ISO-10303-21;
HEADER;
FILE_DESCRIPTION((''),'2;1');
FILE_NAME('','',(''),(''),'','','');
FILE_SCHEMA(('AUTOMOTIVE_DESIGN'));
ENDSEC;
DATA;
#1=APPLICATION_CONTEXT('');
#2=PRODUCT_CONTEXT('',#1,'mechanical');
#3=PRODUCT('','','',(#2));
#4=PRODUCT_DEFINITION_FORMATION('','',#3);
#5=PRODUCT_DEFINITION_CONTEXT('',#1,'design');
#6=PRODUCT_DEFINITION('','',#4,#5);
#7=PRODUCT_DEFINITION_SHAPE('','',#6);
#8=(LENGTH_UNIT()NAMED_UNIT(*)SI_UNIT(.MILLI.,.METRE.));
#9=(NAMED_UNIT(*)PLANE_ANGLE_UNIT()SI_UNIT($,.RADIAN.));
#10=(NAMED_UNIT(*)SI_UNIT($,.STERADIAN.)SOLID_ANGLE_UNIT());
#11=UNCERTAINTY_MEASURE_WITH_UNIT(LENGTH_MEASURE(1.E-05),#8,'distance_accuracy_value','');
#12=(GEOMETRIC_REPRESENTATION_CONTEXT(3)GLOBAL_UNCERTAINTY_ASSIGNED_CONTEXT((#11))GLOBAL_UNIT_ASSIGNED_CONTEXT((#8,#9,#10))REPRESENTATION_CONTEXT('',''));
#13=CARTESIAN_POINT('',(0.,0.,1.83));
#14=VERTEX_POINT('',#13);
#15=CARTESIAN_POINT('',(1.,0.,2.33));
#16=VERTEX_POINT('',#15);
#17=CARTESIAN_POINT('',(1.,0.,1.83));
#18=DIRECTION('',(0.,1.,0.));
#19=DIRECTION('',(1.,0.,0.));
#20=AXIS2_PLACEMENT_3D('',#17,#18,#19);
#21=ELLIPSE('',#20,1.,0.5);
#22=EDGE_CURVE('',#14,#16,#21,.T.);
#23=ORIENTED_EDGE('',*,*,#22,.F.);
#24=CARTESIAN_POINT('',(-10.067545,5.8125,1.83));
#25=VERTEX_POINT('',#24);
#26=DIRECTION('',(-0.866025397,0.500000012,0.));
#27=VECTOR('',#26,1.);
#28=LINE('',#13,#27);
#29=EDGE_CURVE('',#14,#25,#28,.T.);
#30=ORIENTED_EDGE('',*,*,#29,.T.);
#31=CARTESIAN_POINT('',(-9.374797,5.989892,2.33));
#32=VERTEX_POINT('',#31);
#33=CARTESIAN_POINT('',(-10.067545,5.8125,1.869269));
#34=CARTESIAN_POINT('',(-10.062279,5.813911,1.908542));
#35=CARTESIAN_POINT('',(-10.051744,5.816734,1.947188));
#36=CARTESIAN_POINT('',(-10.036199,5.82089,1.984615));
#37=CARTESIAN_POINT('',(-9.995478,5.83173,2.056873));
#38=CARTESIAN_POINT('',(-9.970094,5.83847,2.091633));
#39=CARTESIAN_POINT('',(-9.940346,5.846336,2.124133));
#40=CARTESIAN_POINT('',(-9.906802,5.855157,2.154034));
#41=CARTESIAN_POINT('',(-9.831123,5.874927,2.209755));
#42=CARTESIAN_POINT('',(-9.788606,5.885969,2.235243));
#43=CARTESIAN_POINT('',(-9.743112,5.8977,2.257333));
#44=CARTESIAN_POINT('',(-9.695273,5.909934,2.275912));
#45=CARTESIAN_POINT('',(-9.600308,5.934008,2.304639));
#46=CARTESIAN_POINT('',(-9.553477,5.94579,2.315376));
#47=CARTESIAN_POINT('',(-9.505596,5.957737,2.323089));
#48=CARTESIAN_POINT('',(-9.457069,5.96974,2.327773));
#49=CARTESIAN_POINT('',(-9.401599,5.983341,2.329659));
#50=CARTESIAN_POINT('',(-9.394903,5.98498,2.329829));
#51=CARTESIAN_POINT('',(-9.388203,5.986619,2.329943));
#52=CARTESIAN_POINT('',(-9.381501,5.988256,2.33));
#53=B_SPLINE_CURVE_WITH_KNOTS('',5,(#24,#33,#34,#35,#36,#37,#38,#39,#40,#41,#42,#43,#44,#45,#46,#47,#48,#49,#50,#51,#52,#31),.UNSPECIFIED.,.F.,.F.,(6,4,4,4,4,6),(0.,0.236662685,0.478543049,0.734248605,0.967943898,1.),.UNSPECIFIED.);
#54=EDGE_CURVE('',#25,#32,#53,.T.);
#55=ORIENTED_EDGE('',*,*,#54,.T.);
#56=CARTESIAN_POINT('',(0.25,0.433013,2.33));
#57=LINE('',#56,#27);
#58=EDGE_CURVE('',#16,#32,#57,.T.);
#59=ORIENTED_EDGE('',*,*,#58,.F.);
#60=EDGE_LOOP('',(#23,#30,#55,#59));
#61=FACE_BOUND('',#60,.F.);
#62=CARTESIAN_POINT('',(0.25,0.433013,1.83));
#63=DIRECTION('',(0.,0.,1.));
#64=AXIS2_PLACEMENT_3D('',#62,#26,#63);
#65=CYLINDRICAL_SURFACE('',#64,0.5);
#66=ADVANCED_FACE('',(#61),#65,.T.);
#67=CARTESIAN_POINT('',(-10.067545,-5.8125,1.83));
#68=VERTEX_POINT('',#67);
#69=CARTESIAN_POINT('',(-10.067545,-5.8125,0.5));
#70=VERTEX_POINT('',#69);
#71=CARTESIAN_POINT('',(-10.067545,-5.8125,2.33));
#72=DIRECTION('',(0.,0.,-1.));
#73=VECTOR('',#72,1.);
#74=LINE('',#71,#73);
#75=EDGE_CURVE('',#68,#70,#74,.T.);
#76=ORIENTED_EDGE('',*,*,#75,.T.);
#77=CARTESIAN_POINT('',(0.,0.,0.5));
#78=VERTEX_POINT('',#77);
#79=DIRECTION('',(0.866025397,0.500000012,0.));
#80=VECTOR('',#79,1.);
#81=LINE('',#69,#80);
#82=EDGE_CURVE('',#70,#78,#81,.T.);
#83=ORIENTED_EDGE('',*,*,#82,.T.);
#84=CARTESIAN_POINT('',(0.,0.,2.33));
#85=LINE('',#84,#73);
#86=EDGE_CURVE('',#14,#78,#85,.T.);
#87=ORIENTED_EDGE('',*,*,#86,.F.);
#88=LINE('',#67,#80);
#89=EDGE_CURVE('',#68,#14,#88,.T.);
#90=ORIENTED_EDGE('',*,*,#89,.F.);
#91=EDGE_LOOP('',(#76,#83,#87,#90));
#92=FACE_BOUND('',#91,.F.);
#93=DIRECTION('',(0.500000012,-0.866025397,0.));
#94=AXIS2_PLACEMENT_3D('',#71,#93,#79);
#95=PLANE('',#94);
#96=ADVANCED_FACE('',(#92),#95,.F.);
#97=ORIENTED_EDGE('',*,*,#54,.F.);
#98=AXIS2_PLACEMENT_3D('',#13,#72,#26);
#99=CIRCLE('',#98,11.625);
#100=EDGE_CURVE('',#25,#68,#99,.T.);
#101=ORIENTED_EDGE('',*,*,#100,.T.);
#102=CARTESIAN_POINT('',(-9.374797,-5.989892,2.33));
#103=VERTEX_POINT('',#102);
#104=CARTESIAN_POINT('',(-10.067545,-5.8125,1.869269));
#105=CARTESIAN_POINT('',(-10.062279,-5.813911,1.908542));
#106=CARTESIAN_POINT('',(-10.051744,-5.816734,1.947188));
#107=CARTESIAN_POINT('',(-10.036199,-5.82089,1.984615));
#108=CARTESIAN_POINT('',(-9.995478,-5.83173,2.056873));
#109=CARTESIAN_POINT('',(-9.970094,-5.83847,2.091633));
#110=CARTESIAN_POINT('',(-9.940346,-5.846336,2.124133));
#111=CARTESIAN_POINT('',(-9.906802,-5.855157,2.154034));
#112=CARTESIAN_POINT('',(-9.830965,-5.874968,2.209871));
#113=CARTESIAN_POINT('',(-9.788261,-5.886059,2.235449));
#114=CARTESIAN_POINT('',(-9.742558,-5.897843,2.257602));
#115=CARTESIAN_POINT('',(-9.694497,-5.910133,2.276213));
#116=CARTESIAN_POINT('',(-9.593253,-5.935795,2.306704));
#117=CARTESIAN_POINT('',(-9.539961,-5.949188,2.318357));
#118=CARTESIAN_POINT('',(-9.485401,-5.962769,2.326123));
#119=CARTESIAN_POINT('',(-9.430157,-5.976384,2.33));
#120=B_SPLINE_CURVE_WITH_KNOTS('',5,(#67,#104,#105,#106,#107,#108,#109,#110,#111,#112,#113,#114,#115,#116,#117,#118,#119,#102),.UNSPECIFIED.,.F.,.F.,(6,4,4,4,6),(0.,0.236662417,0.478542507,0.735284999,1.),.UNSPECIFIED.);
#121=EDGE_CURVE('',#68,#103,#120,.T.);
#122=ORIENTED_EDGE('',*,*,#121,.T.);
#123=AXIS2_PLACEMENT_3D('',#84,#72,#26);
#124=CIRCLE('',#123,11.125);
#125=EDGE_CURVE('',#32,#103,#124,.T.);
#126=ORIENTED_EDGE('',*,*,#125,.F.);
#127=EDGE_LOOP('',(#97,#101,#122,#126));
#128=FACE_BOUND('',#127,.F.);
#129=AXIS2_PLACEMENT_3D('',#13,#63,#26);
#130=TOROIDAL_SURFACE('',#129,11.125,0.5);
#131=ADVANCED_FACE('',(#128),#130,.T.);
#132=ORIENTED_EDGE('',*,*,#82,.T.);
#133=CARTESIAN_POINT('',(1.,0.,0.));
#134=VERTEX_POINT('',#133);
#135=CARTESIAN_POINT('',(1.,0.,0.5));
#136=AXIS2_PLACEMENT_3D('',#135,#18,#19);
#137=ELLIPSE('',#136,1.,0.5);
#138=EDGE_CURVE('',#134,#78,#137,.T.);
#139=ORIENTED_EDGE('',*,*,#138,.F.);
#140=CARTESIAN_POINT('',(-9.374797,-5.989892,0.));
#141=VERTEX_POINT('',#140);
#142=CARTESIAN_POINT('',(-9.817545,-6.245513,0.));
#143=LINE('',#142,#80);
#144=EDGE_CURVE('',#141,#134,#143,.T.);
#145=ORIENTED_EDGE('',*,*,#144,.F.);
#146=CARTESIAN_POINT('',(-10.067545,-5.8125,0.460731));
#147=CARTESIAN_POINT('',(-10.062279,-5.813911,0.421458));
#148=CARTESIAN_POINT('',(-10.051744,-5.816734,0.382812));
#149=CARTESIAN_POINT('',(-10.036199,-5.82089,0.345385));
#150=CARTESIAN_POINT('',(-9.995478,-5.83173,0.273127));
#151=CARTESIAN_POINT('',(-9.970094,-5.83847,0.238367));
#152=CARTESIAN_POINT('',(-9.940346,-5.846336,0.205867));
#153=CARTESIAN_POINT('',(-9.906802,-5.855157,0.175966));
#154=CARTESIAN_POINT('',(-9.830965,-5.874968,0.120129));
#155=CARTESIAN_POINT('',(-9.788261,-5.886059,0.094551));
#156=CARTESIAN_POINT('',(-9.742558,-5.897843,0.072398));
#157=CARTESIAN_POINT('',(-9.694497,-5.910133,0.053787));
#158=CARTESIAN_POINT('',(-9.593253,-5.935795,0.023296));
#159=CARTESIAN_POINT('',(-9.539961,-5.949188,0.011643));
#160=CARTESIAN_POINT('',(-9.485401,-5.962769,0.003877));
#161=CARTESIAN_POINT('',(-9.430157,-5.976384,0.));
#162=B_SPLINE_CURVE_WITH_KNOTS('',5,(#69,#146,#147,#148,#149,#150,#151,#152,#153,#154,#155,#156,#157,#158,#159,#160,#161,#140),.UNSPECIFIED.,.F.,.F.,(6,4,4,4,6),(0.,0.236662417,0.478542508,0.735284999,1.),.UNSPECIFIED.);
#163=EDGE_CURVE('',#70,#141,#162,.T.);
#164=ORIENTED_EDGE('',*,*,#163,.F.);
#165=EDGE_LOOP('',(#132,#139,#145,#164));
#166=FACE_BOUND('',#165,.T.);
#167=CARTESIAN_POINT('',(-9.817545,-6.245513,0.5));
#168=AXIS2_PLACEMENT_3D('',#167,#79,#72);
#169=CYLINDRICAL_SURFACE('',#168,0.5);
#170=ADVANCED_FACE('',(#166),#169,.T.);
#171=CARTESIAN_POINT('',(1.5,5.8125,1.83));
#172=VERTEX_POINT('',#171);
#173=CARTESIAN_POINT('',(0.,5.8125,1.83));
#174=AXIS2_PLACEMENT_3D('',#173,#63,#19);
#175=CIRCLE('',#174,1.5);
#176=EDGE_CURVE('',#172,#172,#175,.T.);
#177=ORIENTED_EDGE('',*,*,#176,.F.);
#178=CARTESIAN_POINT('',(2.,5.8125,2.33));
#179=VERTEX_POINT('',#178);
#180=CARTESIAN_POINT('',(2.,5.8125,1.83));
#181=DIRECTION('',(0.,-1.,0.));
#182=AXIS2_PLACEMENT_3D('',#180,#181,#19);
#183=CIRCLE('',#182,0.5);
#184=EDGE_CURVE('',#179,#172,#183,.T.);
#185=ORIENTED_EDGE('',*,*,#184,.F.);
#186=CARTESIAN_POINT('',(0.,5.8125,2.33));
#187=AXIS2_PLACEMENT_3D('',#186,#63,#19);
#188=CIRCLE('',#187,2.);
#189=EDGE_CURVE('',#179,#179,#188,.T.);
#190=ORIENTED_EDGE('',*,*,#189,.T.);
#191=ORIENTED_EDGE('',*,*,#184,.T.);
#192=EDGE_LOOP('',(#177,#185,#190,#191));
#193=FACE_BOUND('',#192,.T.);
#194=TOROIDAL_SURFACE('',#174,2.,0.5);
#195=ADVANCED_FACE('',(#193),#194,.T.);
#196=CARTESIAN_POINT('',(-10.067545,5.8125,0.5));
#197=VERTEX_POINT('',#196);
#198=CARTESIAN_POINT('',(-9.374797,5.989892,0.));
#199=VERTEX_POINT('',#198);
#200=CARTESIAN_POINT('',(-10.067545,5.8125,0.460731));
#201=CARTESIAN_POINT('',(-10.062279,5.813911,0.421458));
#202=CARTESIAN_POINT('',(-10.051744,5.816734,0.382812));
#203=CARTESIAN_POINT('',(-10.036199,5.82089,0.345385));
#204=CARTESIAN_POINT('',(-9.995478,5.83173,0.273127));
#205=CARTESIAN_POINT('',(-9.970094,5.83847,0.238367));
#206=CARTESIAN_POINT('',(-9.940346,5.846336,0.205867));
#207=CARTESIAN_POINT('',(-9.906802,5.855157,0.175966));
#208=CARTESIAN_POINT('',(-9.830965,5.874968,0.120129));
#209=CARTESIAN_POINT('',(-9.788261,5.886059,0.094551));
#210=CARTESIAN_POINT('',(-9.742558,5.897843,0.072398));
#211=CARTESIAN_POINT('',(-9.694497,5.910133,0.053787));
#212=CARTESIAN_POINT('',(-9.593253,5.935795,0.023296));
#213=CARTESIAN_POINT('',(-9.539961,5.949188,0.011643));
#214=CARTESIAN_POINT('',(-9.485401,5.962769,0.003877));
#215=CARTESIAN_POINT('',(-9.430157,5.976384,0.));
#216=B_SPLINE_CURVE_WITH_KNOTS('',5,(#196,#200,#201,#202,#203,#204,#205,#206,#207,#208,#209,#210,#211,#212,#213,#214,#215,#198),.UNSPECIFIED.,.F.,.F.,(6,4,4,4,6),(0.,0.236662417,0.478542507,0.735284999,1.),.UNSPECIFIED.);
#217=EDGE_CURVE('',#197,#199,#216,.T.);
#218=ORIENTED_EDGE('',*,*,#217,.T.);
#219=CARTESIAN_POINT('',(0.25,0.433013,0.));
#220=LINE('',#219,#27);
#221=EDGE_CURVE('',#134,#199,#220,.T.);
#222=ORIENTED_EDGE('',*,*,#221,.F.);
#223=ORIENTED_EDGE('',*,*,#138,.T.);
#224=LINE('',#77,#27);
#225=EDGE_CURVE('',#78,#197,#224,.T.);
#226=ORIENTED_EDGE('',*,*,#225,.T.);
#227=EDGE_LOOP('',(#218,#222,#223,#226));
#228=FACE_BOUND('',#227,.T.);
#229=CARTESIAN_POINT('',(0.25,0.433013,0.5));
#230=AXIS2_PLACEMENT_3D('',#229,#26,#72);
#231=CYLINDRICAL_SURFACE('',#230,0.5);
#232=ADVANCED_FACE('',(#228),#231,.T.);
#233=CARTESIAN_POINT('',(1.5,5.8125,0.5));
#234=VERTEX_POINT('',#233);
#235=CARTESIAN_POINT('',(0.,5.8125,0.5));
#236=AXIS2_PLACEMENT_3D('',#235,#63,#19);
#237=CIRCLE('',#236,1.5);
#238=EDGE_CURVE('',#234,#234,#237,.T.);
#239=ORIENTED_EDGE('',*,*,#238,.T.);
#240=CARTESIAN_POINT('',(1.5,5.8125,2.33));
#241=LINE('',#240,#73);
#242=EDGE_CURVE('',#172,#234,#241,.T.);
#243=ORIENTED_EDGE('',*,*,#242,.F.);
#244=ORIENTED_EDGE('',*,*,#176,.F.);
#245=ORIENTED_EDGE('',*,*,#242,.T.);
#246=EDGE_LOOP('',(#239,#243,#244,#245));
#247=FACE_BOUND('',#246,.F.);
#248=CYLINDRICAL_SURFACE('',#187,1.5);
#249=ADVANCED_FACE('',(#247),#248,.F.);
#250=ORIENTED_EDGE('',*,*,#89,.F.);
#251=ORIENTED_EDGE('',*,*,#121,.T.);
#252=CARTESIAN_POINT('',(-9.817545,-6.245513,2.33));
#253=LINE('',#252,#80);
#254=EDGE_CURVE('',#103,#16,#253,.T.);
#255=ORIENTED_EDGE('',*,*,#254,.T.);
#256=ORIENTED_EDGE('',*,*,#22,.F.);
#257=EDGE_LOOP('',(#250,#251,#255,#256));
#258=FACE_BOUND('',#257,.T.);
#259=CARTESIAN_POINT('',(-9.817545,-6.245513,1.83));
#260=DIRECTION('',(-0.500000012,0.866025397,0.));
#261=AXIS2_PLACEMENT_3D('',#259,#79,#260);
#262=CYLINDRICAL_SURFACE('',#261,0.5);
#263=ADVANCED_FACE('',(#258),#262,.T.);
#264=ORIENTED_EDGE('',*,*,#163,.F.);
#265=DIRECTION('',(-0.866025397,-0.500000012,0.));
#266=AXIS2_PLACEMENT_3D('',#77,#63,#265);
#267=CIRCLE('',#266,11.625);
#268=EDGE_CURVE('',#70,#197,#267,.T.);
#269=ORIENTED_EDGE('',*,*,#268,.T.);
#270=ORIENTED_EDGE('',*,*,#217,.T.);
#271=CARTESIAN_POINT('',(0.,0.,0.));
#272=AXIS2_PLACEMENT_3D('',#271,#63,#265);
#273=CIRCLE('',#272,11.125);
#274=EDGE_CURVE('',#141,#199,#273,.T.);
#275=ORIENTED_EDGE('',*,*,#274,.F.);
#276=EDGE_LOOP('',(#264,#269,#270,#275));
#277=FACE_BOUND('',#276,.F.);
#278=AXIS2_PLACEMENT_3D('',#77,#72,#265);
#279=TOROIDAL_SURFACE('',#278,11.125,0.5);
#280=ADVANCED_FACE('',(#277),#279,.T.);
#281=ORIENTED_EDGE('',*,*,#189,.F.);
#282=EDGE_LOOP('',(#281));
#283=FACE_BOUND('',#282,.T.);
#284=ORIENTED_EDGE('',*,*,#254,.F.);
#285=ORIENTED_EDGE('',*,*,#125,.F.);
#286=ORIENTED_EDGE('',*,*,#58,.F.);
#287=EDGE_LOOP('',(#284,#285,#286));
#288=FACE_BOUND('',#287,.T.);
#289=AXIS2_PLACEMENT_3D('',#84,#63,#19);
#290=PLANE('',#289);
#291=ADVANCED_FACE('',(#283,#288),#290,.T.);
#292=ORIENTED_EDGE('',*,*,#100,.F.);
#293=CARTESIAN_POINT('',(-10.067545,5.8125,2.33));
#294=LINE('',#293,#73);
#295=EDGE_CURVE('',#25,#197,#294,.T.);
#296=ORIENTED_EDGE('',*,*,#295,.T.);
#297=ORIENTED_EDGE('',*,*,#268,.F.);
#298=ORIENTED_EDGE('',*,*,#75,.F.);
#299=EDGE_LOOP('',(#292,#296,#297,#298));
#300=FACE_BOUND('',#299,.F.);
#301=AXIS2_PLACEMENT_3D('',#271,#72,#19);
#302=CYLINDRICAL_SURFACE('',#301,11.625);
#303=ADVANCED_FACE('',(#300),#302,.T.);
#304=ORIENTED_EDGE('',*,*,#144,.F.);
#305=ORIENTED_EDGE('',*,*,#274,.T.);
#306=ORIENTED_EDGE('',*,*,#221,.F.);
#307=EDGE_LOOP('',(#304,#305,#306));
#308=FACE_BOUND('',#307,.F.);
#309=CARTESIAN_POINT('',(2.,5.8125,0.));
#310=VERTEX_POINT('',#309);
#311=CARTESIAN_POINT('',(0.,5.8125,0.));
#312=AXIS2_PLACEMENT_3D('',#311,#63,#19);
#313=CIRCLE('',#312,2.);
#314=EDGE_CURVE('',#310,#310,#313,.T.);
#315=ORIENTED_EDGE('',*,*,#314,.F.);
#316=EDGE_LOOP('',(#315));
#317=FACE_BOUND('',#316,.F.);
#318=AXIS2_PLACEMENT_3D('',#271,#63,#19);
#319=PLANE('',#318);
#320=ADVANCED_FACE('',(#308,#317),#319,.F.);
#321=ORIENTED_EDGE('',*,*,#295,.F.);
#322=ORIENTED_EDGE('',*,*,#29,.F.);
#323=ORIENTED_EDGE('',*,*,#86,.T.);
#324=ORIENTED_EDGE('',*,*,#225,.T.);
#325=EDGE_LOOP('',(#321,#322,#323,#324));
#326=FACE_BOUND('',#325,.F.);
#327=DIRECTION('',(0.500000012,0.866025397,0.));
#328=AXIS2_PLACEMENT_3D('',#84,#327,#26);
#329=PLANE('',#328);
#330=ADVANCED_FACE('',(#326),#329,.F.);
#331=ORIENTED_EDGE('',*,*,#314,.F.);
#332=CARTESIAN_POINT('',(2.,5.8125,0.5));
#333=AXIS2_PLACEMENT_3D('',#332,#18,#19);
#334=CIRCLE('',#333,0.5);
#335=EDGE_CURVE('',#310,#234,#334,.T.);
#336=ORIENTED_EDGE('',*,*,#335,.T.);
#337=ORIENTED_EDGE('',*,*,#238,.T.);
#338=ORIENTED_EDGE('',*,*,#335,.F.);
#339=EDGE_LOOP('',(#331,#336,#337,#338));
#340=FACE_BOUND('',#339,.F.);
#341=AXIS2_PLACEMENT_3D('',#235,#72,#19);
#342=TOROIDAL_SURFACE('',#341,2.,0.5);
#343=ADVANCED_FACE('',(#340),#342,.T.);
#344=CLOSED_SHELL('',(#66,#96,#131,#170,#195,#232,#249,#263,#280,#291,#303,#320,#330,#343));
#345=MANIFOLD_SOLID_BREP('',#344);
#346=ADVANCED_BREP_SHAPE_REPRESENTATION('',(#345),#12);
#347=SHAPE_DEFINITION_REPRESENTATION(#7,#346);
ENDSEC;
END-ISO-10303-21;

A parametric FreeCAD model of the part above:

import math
import FreeCAD as App
import Part
import Sketcher
Q = App.Units.Quantity


def edges_at(feature, points):
    """Names of the edges that pass closest to the given points."""
    edges = feature.Shape.Edges
    near = lambda p: min(range(len(edges)), key=lambda i: edges[i].distToShape(Part.Vertex(*p))[0])
    return sorted({f"Edge{near(p) + 1}" for p in points})

doc = App.newDocument("Part")
body = doc.addObject("PartDesign::Body", "Body")

# Sketch on XY plane
sketch1 = body.newObject("Sketcher::SketchObject", "Sketch")
sketch1.AttachmentSupport = (doc.getObject("XY_Plane"), [""])
sketch1.MapMode = "FlatFace"
sketch1.addGeometry(Part.Circle(App.Vector(0, 0, 0), App.Vector(0, 0, 1), 11.625), False)
sketch1.addConstraint(Sketcher.Constraint("Coincident", 0, 3, -1, 1))
sketch1.addConstraint(Sketcher.Constraint("Diameter", 0, Q("23.25 mm")))
pad1 = body.newObject("PartDesign::Pad", "Pad")
pad1.Profile = sketch1
pad1.Length = 2.33

# Sketch on XY plane
sketch2 = body.newObject("Sketcher::SketchObject", "Sketch001")
sketch2.AttachmentSupport = (doc.getObject("XY_Plane"), [""])
sketch2.MapMode = "FlatFace"
sketch2.AttachmentOffset = App.Placement(App.Vector(0, 0, 2.33), App.Rotation())
sketch2.addGeometry(Part.LineSegment(App.Vector(-10.067545, -5.8125, 0), App.Vector(0, 0, 0)), False)
sketch2.addGeometry(Part.LineSegment(App.Vector(0, 0, 0), App.Vector(-10.067545, 5.8125, 0)), False)
sketch2.addGeometry(Part.ArcOfCircle(Part.Circle(App.Vector(-0.000002, 0, 0), App.Vector(0, 0, 1), 11.624998), math.radians(149.999994), math.radians(210.000006)), False)
sketch2.addConstraint(Sketcher.Constraint("Coincident", 0, 2, 1, 1))
sketch2.addConstraint(Sketcher.Constraint("Coincident", 1, 2, 2, 1))
sketch2.addConstraint(Sketcher.Constraint("Coincident", 2, 2, 0, 1))
sketch2.addConstraint(Sketcher.Constraint("Coincident", 2, 3, -1, 1))
sketch2.addConstraint(Sketcher.Constraint("Coincident", 0, 2, -1, 1))
sketch2.addConstraint(Sketcher.Constraint("Vertical", 1, 2, 2, 2))
sketch2.addConstraint(Sketcher.Constraint("Angle", 0, Q("30.000001 deg")))
sketch2.addConstraint(Sketcher.Constraint("Distance", 0, Q("11.625 mm")))
pocket1 = body.newObject("PartDesign::Pocket", "Pocket")
pocket1.Profile = sketch2
pocket1.Type = "ThroughAll"

# Sketch on XY plane
sketch3 = body.newObject("Sketcher::SketchObject", "Sketch002")
sketch3.AttachmentSupport = (doc.getObject("XY_Plane"), [""])
sketch3.MapMode = "FlatFace"
sketch3.AttachmentOffset = App.Placement(App.Vector(0, 0, 2.33), App.Rotation())
sketch3.addGeometry(Part.Circle(App.Vector(0, 5.8125, 0), App.Vector(0, 0, 1), 1.5), False)
sketch3.addConstraint(Sketcher.Constraint("PointOnObject", 0, 3, -2))
sketch3.addConstraint(Sketcher.Constraint("Diameter", 0, Q("3 mm")))
sketch3.addConstraint(Sketcher.Constraint("DistanceY", -1, 1, 0, 3, Q("5.8125 mm")))
pocket2 = body.newObject("PartDesign::Pocket", "Pocket001")
pocket2.Profile = sketch3
pocket2.Type = "ThroughAll"
doc.recompute()

fillet = body.newObject("PartDesign::Fillet", "Fillet")
fillet.Base = (pocket2, edges_at(pocket2, [
    (11.625, 0, 2.33),
    (11.625, 0, 0),
    (-5.034, -2.906, 2.33),
    (-5.034, 2.906, 2.33),
    (-5.034, -2.906, 0),
    (-5.034, 2.906, 0),
    (-1.5, 5.812, 0),
    (-1.5, 5.812, 2.33),
]))
fillet.Radius = 0.5

doc.recompute()
